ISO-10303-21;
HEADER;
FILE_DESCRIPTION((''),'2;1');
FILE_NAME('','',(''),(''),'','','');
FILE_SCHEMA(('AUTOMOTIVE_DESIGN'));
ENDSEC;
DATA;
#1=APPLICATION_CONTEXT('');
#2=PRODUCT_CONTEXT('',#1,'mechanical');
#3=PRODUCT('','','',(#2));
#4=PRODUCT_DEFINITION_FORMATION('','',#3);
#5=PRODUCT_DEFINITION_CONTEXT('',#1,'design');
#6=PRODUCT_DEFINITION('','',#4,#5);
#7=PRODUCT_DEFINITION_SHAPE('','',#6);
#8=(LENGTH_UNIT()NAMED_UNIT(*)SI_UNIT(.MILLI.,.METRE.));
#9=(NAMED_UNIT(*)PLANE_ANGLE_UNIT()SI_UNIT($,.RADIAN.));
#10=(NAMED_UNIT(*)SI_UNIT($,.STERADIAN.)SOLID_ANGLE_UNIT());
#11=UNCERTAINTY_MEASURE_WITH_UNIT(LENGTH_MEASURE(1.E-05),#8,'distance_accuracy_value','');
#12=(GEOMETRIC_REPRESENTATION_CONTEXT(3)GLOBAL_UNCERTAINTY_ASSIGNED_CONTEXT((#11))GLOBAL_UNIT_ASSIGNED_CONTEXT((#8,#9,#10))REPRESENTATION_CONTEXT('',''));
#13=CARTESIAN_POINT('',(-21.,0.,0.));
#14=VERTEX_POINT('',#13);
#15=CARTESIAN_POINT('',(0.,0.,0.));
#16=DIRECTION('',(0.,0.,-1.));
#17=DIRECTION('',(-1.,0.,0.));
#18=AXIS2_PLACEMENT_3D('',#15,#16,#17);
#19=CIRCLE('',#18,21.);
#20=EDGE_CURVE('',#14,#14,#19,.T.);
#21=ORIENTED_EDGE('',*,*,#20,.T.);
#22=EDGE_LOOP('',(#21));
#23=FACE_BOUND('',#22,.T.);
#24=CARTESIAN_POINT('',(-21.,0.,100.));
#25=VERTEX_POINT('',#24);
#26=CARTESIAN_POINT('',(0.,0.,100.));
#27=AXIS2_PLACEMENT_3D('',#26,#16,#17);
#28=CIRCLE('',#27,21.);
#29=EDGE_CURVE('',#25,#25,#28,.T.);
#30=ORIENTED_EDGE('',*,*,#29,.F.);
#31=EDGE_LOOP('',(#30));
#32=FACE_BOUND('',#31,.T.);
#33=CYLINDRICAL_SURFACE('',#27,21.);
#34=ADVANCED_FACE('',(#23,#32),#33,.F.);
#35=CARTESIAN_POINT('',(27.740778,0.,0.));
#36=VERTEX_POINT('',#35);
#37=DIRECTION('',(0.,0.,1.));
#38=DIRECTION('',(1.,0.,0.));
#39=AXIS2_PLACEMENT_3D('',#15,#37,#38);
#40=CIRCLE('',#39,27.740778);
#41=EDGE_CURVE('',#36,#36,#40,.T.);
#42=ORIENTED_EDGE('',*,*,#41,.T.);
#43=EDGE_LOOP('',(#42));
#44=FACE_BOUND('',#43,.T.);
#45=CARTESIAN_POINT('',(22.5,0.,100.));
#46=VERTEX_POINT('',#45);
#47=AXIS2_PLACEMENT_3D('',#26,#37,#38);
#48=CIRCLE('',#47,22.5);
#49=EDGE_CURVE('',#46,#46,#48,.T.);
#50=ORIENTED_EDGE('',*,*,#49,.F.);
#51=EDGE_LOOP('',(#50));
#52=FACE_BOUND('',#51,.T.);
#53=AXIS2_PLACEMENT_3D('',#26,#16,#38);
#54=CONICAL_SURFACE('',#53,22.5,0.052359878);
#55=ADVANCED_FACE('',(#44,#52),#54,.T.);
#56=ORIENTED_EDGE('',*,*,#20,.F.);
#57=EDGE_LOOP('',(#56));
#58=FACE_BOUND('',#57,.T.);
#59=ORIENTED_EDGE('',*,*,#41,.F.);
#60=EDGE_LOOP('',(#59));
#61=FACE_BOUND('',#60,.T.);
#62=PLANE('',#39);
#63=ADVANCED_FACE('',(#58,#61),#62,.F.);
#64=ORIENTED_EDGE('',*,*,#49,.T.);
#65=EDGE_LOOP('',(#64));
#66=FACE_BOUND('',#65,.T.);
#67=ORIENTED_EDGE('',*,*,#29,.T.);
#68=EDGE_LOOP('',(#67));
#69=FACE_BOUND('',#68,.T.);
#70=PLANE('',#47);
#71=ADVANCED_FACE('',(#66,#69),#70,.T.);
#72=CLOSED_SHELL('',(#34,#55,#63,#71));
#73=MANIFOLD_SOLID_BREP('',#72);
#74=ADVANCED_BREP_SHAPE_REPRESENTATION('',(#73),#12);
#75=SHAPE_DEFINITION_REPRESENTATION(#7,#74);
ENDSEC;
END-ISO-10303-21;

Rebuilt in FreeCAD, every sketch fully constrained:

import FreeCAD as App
import Part
import Sketcher
from FreeCAD import Vector


def faces_at(feature, points):
    """Names of the faces that lie closest to the given points."""
    faces = feature.Shape.Faces
    near = lambda p: min(range(len(faces)), key=lambda i: faces[i].distToShape(Part.Vertex(*p))[0])
    return sorted({f"Face{near(p) + 1}" for p in points})

doc = App.newDocument("Part")
params = doc.addObject("Spreadsheet::Sheet", "Params")
for row, (alias, value) in enumerate([
    ("sketch1_diameter", "45 mm"),
    ("pad1_length", "100 mm"),
    ("draft_angle", "3 deg"),
    ("sketch2_diameter", "42 mm"),
], start=1):
    params.set(f"A{row}", alias)
    params.set(f"B{row}", "=" + value)
    params.setAlias(f"B{row}", alias)

body = doc.addObject("PartDesign::Body", "Body")

sketch1 = body.newObject("Sketcher::SketchObject", "Sketch")
sketch1.AttachmentSupport = (doc.getObject("XY_Plane"), [""])
sketch1.MapMode = "FlatFace"
sketch1.addGeometry(Part.Circle(Vector(0, 0, 0), Vector(0, 0, 1), 22), False)
sketch1.addConstraint([
    Sketcher.Constraint("Coincident", 0, 3, -1, 1),
    Sketcher.Constraint("Diameter", 0, 45.0),
])
sketch1.setExpression("Constraints[1]", "Params.sketch1_diameter")
pad1 = body.newObject("PartDesign::Pad", "Pad")
pad1.Profile = sketch1
pad1.setExpression("Length", "Params.pad1_length")
doc.recompute()

datumplane = body.newObject("PartDesign::Plane", "DatumPlane")
datumplane.AttachmentSupport = (doc.getObject("XY_Plane"), [""])
datumplane.MapMode = "FlatFace"
datumplane.AttachmentOffset = App.Placement(Vector(0, 0, 100), App.Rotation())
draft = body.newObject("PartDesign::Draft", "Draft")
draft.Base = (pad1, faces_at(pad1, [(-22.5, 0, 50)]))
draft.NeutralPlane = (datumplane, [""])
draft.setExpression("Angle", "Params.draft_angle")
draft.Reversed = False

sketch2 = body.newObject("Sketcher::SketchObject", "Sketch001")
sketch2.AttachmentSupport = (doc.getObject("XY_Plane"), [""])
sketch2.MapMode = "FlatFace"
sketch2.addGeometry(Part.Circle(Vector(0, 0, 0), Vector(0, 0, 1), 21), False)
sketch2.addConstraint([
    Sketcher.Constraint("Coincident", 0, 3, -1, 1),
    Sketcher.Constraint("Diameter", 0, 42.0),
])
sketch2.setExpression("Constraints[1]", "Params.sketch2_diameter")
pocket1 = body.newObject("PartDesign::Pocket", "Pocket")
pocket1.Profile = sketch2
pocket1.Type = "ThroughAll"
pocket1.Reversed = True

doc.recompute()
